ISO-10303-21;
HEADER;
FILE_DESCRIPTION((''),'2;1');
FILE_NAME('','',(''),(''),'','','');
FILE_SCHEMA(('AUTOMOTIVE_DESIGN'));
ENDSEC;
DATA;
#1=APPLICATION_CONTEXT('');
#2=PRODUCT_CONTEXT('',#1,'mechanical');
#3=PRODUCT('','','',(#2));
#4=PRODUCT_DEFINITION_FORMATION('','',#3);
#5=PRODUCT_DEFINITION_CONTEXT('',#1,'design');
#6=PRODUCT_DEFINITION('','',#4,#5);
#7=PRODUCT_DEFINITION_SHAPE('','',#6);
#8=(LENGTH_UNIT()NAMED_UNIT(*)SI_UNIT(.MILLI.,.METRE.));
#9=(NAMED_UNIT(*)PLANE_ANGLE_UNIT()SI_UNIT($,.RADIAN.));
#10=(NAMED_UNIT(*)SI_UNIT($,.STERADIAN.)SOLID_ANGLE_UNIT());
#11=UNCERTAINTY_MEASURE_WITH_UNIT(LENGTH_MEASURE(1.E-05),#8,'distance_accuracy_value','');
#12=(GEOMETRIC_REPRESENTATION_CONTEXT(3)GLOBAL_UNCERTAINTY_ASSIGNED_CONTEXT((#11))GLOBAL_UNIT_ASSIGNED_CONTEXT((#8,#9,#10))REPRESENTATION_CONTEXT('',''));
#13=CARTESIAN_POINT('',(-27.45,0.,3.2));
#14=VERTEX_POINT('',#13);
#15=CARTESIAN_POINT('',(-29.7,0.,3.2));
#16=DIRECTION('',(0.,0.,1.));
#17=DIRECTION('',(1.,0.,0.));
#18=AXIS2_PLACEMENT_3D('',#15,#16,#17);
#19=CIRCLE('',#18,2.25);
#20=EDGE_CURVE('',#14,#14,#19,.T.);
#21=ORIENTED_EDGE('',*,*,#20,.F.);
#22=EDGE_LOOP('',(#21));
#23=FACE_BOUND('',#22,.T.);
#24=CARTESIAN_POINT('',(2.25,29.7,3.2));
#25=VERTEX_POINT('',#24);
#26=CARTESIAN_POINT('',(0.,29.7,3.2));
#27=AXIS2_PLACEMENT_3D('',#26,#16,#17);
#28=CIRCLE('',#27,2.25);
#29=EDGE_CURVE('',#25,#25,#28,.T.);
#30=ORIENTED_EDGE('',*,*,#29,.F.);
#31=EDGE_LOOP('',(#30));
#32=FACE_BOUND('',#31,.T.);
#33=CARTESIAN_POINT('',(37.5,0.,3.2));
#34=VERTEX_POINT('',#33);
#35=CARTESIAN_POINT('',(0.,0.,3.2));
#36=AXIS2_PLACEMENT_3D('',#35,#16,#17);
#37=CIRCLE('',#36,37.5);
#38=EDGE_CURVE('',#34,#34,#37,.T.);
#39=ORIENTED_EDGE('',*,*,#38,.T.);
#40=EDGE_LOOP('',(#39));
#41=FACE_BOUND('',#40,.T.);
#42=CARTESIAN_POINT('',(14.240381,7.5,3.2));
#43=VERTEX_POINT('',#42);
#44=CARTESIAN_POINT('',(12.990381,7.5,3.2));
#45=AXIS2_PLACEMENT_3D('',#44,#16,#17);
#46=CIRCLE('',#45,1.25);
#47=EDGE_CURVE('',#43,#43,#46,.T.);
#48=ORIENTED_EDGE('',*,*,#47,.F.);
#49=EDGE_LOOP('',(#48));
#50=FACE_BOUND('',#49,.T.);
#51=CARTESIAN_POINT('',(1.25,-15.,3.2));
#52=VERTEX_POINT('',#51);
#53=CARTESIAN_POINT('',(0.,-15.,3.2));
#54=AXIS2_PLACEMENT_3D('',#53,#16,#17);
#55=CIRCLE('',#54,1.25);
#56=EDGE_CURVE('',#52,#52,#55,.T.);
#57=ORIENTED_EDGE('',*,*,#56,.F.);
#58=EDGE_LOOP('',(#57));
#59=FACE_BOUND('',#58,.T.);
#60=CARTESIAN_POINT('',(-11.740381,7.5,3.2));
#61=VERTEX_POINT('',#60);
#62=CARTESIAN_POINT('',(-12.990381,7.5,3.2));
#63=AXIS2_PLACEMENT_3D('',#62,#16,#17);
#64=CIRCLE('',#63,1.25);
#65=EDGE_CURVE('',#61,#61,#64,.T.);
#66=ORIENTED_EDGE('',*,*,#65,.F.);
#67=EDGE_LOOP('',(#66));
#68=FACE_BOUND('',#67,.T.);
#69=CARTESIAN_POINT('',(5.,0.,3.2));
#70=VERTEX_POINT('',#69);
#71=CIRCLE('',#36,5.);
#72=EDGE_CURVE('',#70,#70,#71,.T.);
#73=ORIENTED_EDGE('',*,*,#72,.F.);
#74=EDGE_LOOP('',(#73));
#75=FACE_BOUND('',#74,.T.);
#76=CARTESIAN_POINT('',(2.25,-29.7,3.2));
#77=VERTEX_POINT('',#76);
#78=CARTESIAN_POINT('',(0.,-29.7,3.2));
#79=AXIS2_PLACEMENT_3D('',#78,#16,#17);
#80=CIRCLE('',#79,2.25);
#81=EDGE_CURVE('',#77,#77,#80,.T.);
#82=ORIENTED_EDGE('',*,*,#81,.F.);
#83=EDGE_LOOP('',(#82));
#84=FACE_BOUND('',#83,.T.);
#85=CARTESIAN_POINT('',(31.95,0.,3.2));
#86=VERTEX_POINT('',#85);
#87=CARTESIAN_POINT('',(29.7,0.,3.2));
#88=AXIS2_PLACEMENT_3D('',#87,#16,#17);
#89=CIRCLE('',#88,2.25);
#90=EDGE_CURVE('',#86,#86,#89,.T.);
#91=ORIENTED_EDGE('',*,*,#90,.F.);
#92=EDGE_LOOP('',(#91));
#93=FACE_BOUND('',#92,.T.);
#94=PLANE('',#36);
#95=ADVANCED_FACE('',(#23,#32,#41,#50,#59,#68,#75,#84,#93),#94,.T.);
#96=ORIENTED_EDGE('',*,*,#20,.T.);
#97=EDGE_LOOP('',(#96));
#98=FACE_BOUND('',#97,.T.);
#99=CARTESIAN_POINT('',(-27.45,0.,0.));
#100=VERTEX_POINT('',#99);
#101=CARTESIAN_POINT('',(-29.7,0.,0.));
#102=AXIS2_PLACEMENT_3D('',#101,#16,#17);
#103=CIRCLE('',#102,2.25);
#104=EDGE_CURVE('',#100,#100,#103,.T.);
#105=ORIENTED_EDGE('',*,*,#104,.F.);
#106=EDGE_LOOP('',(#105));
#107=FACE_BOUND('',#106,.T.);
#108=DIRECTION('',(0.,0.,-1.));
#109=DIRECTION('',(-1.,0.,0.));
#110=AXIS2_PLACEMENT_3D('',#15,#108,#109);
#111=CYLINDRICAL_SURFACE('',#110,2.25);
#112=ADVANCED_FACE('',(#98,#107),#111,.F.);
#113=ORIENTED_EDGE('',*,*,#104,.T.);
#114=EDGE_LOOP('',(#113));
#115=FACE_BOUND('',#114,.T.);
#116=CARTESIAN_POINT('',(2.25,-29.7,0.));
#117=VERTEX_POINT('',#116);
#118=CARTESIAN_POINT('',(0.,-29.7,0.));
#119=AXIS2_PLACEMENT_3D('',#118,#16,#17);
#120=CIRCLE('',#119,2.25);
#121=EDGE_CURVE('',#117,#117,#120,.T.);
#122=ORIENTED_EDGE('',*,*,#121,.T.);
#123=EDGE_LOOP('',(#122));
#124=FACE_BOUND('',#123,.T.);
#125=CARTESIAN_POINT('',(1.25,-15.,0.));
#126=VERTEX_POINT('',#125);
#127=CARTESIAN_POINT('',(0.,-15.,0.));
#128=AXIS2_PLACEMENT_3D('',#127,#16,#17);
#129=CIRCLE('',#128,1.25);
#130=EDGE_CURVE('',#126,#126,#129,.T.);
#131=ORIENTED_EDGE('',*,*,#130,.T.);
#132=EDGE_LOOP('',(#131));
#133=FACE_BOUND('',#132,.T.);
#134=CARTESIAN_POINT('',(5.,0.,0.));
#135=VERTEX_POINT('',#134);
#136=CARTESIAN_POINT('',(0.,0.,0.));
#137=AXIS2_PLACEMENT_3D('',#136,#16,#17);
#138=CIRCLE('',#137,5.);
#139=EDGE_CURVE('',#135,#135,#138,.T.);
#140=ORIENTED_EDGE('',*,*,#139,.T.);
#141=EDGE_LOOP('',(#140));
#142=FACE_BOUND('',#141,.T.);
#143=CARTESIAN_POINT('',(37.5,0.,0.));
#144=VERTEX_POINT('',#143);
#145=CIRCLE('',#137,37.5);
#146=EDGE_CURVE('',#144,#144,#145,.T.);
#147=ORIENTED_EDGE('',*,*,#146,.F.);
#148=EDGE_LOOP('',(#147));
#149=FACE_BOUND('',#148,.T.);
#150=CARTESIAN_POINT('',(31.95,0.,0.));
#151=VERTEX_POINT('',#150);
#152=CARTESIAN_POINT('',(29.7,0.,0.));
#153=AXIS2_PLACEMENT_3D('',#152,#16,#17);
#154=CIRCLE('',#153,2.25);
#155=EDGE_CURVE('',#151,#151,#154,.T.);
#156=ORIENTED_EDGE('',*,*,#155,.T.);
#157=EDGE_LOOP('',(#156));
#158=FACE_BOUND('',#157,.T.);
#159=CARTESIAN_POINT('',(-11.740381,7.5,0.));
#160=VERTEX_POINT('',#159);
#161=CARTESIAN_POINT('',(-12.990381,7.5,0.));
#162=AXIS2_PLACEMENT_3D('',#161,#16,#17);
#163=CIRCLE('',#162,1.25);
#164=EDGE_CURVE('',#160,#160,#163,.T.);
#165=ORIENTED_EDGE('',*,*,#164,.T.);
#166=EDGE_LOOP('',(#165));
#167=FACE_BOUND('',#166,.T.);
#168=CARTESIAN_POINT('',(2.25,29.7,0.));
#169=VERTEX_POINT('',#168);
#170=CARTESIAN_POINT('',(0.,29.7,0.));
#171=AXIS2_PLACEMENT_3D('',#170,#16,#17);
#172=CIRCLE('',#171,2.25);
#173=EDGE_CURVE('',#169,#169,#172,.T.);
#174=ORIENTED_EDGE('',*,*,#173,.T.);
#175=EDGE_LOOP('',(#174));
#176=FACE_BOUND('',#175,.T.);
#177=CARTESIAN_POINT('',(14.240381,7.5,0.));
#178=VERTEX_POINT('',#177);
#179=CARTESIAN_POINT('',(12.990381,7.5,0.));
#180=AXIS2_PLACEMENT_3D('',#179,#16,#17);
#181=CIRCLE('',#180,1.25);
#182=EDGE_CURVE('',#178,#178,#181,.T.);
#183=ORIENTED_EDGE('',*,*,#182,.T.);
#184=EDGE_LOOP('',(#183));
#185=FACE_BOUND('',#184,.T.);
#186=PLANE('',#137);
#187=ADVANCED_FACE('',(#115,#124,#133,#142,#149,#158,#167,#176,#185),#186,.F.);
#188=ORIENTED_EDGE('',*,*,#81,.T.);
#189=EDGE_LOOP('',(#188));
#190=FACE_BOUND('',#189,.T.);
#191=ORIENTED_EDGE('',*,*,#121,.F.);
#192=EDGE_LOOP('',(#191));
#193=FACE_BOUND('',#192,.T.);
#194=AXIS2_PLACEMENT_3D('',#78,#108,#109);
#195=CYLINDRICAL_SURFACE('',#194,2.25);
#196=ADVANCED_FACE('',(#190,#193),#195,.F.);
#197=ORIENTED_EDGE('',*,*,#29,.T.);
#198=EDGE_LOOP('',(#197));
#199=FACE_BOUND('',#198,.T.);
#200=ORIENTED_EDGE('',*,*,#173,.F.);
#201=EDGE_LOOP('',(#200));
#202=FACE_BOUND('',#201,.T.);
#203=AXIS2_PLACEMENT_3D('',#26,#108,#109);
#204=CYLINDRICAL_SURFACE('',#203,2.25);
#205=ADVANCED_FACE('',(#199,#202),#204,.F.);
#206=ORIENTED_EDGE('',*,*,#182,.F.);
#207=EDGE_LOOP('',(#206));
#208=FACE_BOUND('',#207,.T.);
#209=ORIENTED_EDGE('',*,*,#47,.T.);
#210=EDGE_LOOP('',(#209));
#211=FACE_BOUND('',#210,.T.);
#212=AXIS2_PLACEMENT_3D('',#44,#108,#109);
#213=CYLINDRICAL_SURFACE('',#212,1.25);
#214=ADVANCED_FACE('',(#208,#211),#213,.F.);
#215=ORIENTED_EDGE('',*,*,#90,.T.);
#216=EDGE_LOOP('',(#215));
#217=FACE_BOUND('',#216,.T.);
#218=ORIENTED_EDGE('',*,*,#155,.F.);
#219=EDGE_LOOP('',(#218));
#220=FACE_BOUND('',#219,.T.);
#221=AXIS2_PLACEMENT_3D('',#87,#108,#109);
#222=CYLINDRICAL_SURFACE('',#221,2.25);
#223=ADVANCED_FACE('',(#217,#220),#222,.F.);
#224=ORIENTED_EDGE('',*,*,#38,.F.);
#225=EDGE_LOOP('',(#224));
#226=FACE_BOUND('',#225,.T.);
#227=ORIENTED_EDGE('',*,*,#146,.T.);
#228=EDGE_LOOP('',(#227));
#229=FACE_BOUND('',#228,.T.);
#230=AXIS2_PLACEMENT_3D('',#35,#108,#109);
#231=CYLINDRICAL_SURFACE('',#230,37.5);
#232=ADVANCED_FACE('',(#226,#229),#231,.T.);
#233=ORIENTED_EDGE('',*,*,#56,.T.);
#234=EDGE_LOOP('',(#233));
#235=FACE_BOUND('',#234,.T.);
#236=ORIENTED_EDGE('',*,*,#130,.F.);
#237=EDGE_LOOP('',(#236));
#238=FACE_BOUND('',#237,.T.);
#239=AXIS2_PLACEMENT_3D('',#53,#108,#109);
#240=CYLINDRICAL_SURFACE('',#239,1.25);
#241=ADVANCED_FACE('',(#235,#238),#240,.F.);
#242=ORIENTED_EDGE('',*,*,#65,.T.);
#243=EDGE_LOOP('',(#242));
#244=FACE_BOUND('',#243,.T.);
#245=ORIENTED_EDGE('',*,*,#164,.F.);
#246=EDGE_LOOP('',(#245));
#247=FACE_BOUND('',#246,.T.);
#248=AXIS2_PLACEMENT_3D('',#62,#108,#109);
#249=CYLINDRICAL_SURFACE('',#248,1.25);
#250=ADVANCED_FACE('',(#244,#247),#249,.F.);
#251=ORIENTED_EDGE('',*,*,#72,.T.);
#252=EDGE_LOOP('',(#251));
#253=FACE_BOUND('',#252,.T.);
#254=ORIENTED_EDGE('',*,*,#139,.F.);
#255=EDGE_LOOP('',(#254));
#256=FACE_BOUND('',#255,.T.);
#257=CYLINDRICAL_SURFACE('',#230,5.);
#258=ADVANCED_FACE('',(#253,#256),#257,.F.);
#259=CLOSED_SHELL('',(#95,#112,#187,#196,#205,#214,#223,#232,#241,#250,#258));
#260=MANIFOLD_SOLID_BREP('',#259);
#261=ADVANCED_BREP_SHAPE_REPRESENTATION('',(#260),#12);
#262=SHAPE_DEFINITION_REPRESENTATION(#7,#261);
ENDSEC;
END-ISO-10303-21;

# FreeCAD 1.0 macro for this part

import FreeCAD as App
import Part
import Sketcher

doc = App.newDocument("Part")
body = doc.addObject("PartDesign::Body", "Body")

sketch1 = body.newObject("Sketcher::SketchObject", "Sketch")
sketch1.AttachmentSupport = (doc.getObject("XY_Plane"), [""])
sketch1.MapMode = "FlatFace"
sketch1.addGeometry([
    Part.Circle(App.Vector(0, 0, 0), App.Vector(0, 0, 1), 37.5),
    Part.Circle(App.Vector(0, -29.7, 0), App.Vector(0, 0, 1), 2.2),
    Part.Circle(App.Vector(0, -15, 0), App.Vector(0, 0, 1), 1.2),
    Part.Circle(App.Vector(-29.7, 0, 0), App.Vector(0, 0, 1), 2.2),
    Part.Circle(App.Vector(-13, 7.5, 0), App.Vector(0, 0, 1), 1.2),
    Part.Circle(App.Vector(0, 0, 0), App.Vector(0, 0, 1), 5),
    Part.Circle(App.Vector(13, 7.5, 0), App.Vector(0, 0, 1), 1.2),
    Part.Circle(App.Vector(29.7, 0, 0), App.Vector(0, 0, 1), 2.2),
    Part.Circle(App.Vector(0, 29.7, 0), App.Vector(0, 0, 1), 2.2),
], False)
sketch1.addConstraint([
    Sketcher.Constraint("Coincident", 0, 3, -1, 1),
    Sketcher.Constraint("Coincident", 5, 3, -1, 1),
    Sketcher.Constraint("Equal", 1, 3),
    Sketcher.Constraint("Equal", 2, 4),
    Sketcher.Constraint("Equal", 4, 6),
    Sketcher.Constraint("Equal", 3, 7),
    Sketcher.Constraint("Equal", 7, 8),
    Sketcher.Constraint("Symmetric", 3, 3, 7, 3, -1, 1),
    Sketcher.Constraint("Symmetric", 1, 3, 8, 3, -1, 1),
    Sketcher.Constraint("Symmetric", 4, 3, 6, 3, -2),
    Sketcher.Constraint("PointOnObject", 1, 3, -2),
    Sketcher.Constraint("PointOnObject", 2, 3, -2),
    Sketcher.Constraint("PointOnObject", 3, 3, -1),
    Sketcher.Constraint("Diameter", 0, 75.0),
    Sketcher.Constraint("Diameter", 5, 10.0),
    Sketcher.Constraint("Diameter", 1, 4.5),
    Sketcher.Constraint("Diameter", 2, 2.5),
    Sketcher.Constraint("DistanceY", 2, 3, -1, 1, 15.0),
    Sketcher.Constraint("DistanceY", 1, 3, -1, 1, 29.7),
    Sketcher.Constraint("DistanceX", 3, 3, -1, 1, 29.7),
    Sketcher.Constraint("DistanceY", -1, 1, 4, 3, 7.5),
    Sketcher.Constraint("DistanceX", 4, 3, -1, 1, 12.990381),
])
pad1 = body.newObject("PartDesign::Pad", "Pad")
pad1.Profile = sketch1
pad1.Length = 3.2

doc.recompute()
